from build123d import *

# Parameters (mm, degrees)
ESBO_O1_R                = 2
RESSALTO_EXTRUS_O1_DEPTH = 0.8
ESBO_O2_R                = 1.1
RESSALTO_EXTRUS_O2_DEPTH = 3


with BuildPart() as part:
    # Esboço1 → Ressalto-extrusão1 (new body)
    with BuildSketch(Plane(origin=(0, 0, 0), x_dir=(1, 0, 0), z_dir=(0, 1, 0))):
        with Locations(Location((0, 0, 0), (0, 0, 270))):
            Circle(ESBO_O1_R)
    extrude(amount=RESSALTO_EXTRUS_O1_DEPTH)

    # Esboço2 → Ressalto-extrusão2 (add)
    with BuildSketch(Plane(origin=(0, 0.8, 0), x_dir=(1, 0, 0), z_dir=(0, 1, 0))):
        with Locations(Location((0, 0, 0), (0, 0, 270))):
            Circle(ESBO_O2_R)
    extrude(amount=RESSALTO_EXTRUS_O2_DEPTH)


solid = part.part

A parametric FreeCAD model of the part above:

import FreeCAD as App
import Part
import Sketcher

V = App.Vector
Q = App.Units.Quantity

doc = App.newDocument("Part")
body = doc.addObject("PartDesign::Body", "Body")

# Sketch on XZ plane
sketch1 = body.newObject("Sketcher::SketchObject", "Sketch")
sketch1.AttachmentSupport = (doc.getObject("XZ_Plane"), [""])
sketch1.MapMode = "FlatFace"
sketch1.addGeometry(Part.Circle(V(0, 0, 0), V(0, 0, 1), 2), False)
sketch1.addConstraint([
    Sketcher.Constraint("Coincident", 0, 3, -1, 1),
    Sketcher.Constraint("Diameter", 0, Q("4 mm")),
])
pad1 = body.newObject("PartDesign::Pad", "Pad")
pad1.Profile = sketch1
pad1.Length = 0.8
pad1.Reversed = True

# Sketch on XZ plane
sketch2 = body.newObject("Sketcher::SketchObject", "Sketch001")
sketch2.AttachmentSupport = (doc.getObject("XZ_Plane"), [""])
sketch2.MapMode = "FlatFace"
sketch2.AttachmentOffset = App.Placement(V(0, 0, -0.8), App.Rotation())
sketch2.addGeometry(Part.Circle(V(0, 0, 0), V(0, 0, 1), 1.1), False)
sketch2.addConstraint([
    Sketcher.Constraint("Coincident", 0, 3, -1, 1),
    Sketcher.Constraint("Diameter", 0, Q("2.2 mm")),
])
pad2 = body.newObject("PartDesign::Pad", "Pad001")
pad2.Profile = sketch2
pad2.Length = 3
pad2.Reversed = True

doc.recompute()
